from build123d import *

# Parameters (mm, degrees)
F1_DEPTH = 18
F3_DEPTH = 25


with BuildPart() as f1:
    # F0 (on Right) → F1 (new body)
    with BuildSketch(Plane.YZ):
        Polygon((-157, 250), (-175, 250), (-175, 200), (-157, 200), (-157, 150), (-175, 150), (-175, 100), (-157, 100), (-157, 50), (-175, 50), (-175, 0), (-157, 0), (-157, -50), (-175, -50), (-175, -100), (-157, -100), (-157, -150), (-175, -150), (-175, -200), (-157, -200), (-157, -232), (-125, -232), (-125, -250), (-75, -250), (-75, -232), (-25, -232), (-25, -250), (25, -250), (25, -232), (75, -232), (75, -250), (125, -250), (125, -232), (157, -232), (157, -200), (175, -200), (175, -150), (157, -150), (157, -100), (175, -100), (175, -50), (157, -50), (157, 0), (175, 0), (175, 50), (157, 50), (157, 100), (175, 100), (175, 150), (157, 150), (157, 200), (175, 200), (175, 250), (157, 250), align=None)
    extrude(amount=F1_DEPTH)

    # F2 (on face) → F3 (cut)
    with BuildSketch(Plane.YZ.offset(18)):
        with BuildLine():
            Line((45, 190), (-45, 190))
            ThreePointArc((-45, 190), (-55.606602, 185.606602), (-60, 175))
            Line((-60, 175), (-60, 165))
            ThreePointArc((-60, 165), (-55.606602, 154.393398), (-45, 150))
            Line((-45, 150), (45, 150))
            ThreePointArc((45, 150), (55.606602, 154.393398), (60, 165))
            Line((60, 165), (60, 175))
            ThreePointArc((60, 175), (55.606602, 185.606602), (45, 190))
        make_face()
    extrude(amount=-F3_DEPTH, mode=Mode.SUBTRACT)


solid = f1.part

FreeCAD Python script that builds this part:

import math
import FreeCAD as App
import Part
import Sketcher

V = App.Vector
Q = App.Units.Quantity


def add_polygon(sketch, points):
    """Adds a closed chain of lines whose ends are joined by coincident constraints."""
    first, n = sketch.GeometryCount, len(points)
    for a, b in zip(points, points[1:] + points[:1]):
        sketch.addGeometry(Part.LineSegment(App.Vector(*a, 0), App.Vector(*b, 0)), False)
    for i in range(n):
        sketch.addConstraint(Sketcher.Constraint("Coincident", first + i, 2, first + (i + 1) % n, 1))

doc = App.newDocument("Part")
body = doc.addObject("PartDesign::Body", "Body")

# Sketch on YZ plane
sketch1 = body.newObject("Sketcher::SketchObject", "Sketch")
sketch1.AttachmentSupport = (doc.getObject("YZ_Plane"), [""])
sketch1.MapMode = "FlatFace"
add_polygon(sketch1, [(-175, 250), (-175, 200), (-157, 200), (-157, 150), (-175, 150), (-175, 100), (-157, 100), (-157, 50), (-175, 50), (-175, 0), (-157, 0), (-157, -50), (-175, -50), (-175, -100), (-157, -100), (-157, -150), (-175, -150), (-175, -200), (-157, -200), (-157, -232), (-125, -232), (-125, -250), (-75, -250), (-75, -232), (-25, -232), (-25, -250), (25, -250), (25, -232), (75, -232), (75, -250), (125, -250), (125, -232), (157, -232), (157, -200), (175, -200), (175, -150), (157, -150), (157, -100), (175, -100), (175, -50), (157, -50), (157, 0), (175, 0), (175, 50), (157, 50), (157, 100), (175, 100), (175, 150), (157, 150), (157, 200), (175, 200), (175, 250)])  # lines 0-51
sketch1.addConstraint(Sketcher.Constraint("Vertical", 0))
sketch1.addConstraint(Sketcher.Constraint("Horizontal", 1))
sketch1.addConstraint(Sketcher.Constraint("Vertical", 2))
sketch1.addConstraint(Sketcher.Constraint("Horizontal", 3))
sketch1.addConstraint(Sketcher.Constraint("Vertical", 4))
sketch1.addConstraint(Sketcher.Constraint("Horizontal", 5))
sketch1.addConstraint(Sketcher.Constraint("Vertical", 6))
sketch1.addConstraint(Sketcher.Constraint("Horizontal", 7))
sketch1.addConstraint(Sketcher.Constraint("Vertical", 8))
sketch1.addConstraint(Sketcher.Constraint("Horizontal", 9))
sketch1.addConstraint(Sketcher.Constraint("Vertical", 10))
sketch1.addConstraint(Sketcher.Constraint("Horizontal", 11))
sketch1.addConstraint(Sketcher.Constraint("Vertical", 12))
sketch1.addConstraint(Sketcher.Constraint("Horizontal", 13))
sketch1.addConstraint(Sketcher.Constraint("Vertical", 14))
sketch1.addConstraint(Sketcher.Constraint("Horizontal", 15))
sketch1.addConstraint(Sketcher.Constraint("Vertical", 16))
sketch1.addConstraint(Sketcher.Constraint("Horizontal", 17))
sketch1.addConstraint(Sketcher.Constraint("Vertical", 18))
sketch1.addConstraint(Sketcher.Constraint("Horizontal", 19))
sketch1.addConstraint(Sketcher.Constraint("Vertical", 20))
sketch1.addConstraint(Sketcher.Constraint("Horizontal", 21))
sketch1.addConstraint(Sketcher.Constraint("Vertical", 22))
sketch1.addConstraint(Sketcher.Constraint("Horizontal", 23))
sketch1.addConstraint(Sketcher.Constraint("Vertical", 24))
sketch1.addConstraint(Sketcher.Constraint("Horizontal", 25))
sketch1.addConstraint(Sketcher.Constraint("Vertical", 26))
sketch1.addConstraint(Sketcher.Constraint("Horizontal", 27))
sketch1.addConstraint(Sketcher.Constraint("Vertical", 28))
sketch1.addConstraint(Sketcher.Constraint("Horizontal", 29))
sketch1.addConstraint(Sketcher.Constraint("Vertical", 30))
sketch1.addConstraint(Sketcher.Constraint("Horizontal", 31))
sketch1.addConstraint(Sketcher.Constraint("Vertical", 32))
sketch1.addConstraint(Sketcher.Constraint("Horizontal", 33))
sketch1.addConstraint(Sketcher.Constraint("Vertical", 34))
sketch1.addConstraint(Sketcher.Constraint("Horizontal", 35))
sketch1.addConstraint(Sketcher.Constraint("Vertical", 36))
sketch1.addConstraint(Sketcher.Constraint("Horizontal", 37))
sketch1.addConstraint(Sketcher.Constraint("Vertical", 38))
sketch1.addConstraint(Sketcher.Constraint("Horizontal", 39))
sketch1.addConstraint(Sketcher.Constraint("Vertical", 40))
sketch1.addConstraint(Sketcher.Constraint("Horizontal", 41))
sketch1.addConstraint(Sketcher.Constraint("Vertical", 42))
sketch1.addConstraint(Sketcher.Constraint("Horizontal", 43))
sketch1.addConstraint(Sketcher.Constraint("Vertical", 44))
sketch1.addConstraint(Sketcher.Constraint("Horizontal", 45))
sketch1.addConstraint(Sketcher.Constraint("Vertical", 46))
sketch1.addConstraint(Sketcher.Constraint("Horizontal", 47))
sketch1.addConstraint(Sketcher.Constraint("Vertical", 48))
sketch1.addConstraint(Sketcher.Constraint("Horizontal", 49))
sketch1.addConstraint(Sketcher.Constraint("Vertical", 50))
sketch1.addConstraint(Sketcher.Constraint("Horizontal", 51))
sketch1.addConstraint(Sketcher.Constraint("Symmetric", 1, 2, 32, 2, -1, 1))
sketch1.addConstraint(Sketcher.Constraint("Symmetric", 3, 2, 34, 2, -1, 1))
sketch1.addConstraint(Sketcher.Constraint("Symmetric", 5, 2, 36, 2, -1, 1))
sketch1.addConstraint(Sketcher.Constraint("Symmetric", 7, 2, 38, 2, -1, 1))
sketch1.addConstraint(Sketcher.Constraint("Symmetric", 9, 2, 40, 2, -1, 1))
sketch1.addConstraint(Sketcher.Constraint("Symmetric", 11, 2, 42, 2, -1, 1))
sketch1.addConstraint(Sketcher.Constraint("Symmetric", 13, 2, 44, 2, -1, 1))
sketch1.addConstraint(Sketcher.Constraint("Symmetric", 15, 2, 46, 2, -1, 1))
sketch1.addConstraint(Sketcher.Constraint("Symmetric", 17, 2, 48, 2, -1, 1))
sketch1.addConstraint(Sketcher.Constraint("Symmetric", 23, 2, 26, 2, -2))
sketch1.addConstraint(Sketcher.Constraint("Symmetric", 21, 2, 28, 2, -2))
sketch1.addConstraint(Sketcher.Constraint("Symmetric", 19, 2, 30, 2, -2))
sketch1.addConstraint(Sketcher.Constraint("Symmetric", 17, 2, 32, 2, -2))
sketch1.addConstraint(Sketcher.Constraint("Symmetric", 15, 2, 34, 2, -2))
sketch1.addConstraint(Sketcher.Constraint("Symmetric", 13, 2, 36, 2, -2))
sketch1.addConstraint(Sketcher.Constraint("Symmetric", 11, 2, 38, 2, -2))
sketch1.addConstraint(Sketcher.Constraint("PointOnObject", 8, 2, -1))
sketch1.addConstraint(Sketcher.Constraint("Horizontal", 19, 2, 22, 2))
sketch1.addConstraint(Sketcher.Constraint("Horizontal", 21, 2, 24, 2))
sketch1.addConstraint(Sketcher.Constraint("Vertical", 0, 2, 3, 2))
sketch1.addConstraint(Sketcher.Constraint("Vertical", 2, 2, 5, 2))
sketch1.addConstraint(Sketcher.Constraint("Vertical", 4, 2, 7, 2))
sketch1.addConstraint(Sketcher.Constraint("Vertical", 6, 2, 9, 2))
sketch1.addConstraint(Sketcher.Constraint("Vertical", 46, 2, 49, 2))
sketch1.addConstraint(Sketcher.Constraint("Equal", 21, 23))
sketch1.addConstraint(Sketcher.Constraint("Equal", 23, 25))
sketch1.addConstraint(Sketcher.Constraint("Equal", 29, 0))
sketch1.addConstraint(Sketcher.Constraint("Equal", 0, 2))
sketch1.addConstraint(Sketcher.Constraint("Equal", 2, 4))
sketch1.addConstraint(Sketcher.Constraint("Equal", 4, 6))
sketch1.addConstraint(Sketcher.Constraint("Equal", 6, 8))
sketch1.addConstraint(Sketcher.Constraint("Equal", 31, 18))
sketch1.addConstraint(Sketcher.Constraint("Equal", 49, 20))
sketch1.addConstraint(Sketcher.Constraint("DistanceX", 1, 1, 1, 2, Q("18 mm")))
sketch1.addConstraint(Sketcher.Constraint("DistanceX", 19, 1, 19, 2, Q("32 mm")))
sketch1.addConstraint(Sketcher.Constraint("DistanceX", 21, 1, 21, 2, Q("50 mm")))
pad1 = body.newObject("PartDesign::Pad", "Pad")
pad1.Profile = sketch1
pad1.Length = 18

# Sketch on YZ plane
sketch2 = body.newObject("Sketcher::SketchObject", "Sketch001")
sketch2.AttachmentSupport = (doc.getObject("YZ_Plane"), [""])
sketch2.MapMode = "FlatFace"
sketch2.AttachmentOffset = App.Placement(V(0, 0, 18), App.Rotation())
sketch2.addGeometry(Part.LineSegment(V(45, 190, 0), V(-45, 190, 0)), False)
sketch2.addGeometry(Part.ArcOfCircle(Part.Circle(V(-45, 175, 0), V(0, 0, 1), 15), math.radians(90), math.radians(180)), False)
sketch2.addGeometry(Part.LineSegment(V(-60, 175, 0), V(-60, 165, 0)), False)
sketch2.addGeometry(Part.ArcOfCircle(Part.Circle(V(-45, 165, 0), V(0, 0, 1), 15), math.radians(180), math.radians(270)), False)
sketch2.addGeometry(Part.LineSegment(V(-45, 150, 0), V(45, 150, 0)), False)
sketch2.addGeometry(Part.ArcOfCircle(Part.Circle(V(45, 165, 0), V(0, 0, 1), 15), math.radians(-90), math.radians(0)), False)
sketch2.addGeometry(Part.LineSegment(V(60, 165, 0), V(60, 175, 0)), False)
sketch2.addGeometry(Part.ArcOfCircle(Part.Circle(V(45, 175, 0), V(0, 0, 1), 15), math.radians(0), math.radians(90)), False)
sketch2.addConstraint(Sketcher.Constraint("Tangent", 0, 2, 1, 1))
sketch2.addConstraint(Sketcher.Constraint("Tangent", 1, 2, 2, 1))
sketch2.addConstraint(Sketcher.Constraint("Tangent", 2, 2, 3, 1))
sketch2.addConstraint(Sketcher.Constraint("Tangent", 3, 2, 4, 1))
sketch2.addConstraint(Sketcher.Constraint("Tangent", 4, 2, 5, 1))
sketch2.addConstraint(Sketcher.Constraint("Tangent", 5, 2, 6, 1))
sketch2.addConstraint(Sketcher.Constraint("Tangent", 6, 2, 7, 1))
sketch2.addConstraint(Sketcher.Constraint("Tangent", 7, 2, 0, 1))
sketch2.addConstraint(Sketcher.Constraint("Horizontal", 0))
sketch2.addConstraint(Sketcher.Constraint("Vertical", 2))
sketch2.addConstraint(Sketcher.Constraint("Horizontal", 4))
sketch2.addConstraint(Sketcher.Constraint("Vertical", 6))
sketch2.addConstraint(Sketcher.Constraint("Equal", 1, 3))
sketch2.addConstraint(Sketcher.Constraint("Equal", 3, 5))
sketch2.addConstraint(Sketcher.Constraint("Equal", 5, 7))
sketch2.addConstraint(Sketcher.Constraint("Radius", 1, Q("14.999999 mm")))
sketch2.addConstraint(Sketcher.Constraint("DistanceX", 0, 2, 0, 1, Q("90 mm")))
sketch2.addConstraint(Sketcher.Constraint("DistanceY", 2, 2, 2, 1, Q("10 mm")))
sketch2.addConstraint(Sketcher.Constraint("DistanceX", 1, 3, -1, 1, Q("45.000001 mm")))
sketch2.addConstraint(Sketcher.Constraint("DistanceY", -1, 1, 1, 3, Q("175.000001 mm")))
pocket1 = body.newObject("PartDesign::Pocket", "Pocket")
pocket1.Profile = sketch2
pocket1.Length = 25

doc.recompute()
